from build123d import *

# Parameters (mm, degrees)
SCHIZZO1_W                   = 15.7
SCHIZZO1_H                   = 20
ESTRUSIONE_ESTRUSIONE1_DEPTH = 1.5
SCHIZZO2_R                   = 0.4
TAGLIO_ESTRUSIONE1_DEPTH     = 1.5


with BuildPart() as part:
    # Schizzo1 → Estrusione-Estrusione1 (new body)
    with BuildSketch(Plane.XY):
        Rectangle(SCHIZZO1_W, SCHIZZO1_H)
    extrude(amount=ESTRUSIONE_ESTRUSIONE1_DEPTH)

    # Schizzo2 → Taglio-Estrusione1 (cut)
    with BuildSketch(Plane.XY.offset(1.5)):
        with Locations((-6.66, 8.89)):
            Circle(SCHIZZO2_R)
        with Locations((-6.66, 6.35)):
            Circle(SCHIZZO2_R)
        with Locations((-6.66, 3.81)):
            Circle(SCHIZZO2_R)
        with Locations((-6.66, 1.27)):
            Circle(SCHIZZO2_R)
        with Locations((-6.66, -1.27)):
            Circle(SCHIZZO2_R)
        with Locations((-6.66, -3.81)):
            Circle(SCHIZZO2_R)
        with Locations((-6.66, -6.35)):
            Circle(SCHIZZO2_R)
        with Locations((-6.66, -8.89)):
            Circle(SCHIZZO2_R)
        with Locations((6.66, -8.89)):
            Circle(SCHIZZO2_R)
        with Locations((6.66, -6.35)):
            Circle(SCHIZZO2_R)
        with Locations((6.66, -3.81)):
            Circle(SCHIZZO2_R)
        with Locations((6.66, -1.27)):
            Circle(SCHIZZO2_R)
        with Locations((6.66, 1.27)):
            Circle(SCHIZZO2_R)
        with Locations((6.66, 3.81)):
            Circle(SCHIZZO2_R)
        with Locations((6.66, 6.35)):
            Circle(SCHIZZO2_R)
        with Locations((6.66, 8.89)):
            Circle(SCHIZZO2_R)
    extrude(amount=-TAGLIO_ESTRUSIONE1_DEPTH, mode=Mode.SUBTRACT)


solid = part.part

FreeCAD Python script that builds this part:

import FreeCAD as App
import Part
import Sketcher


def add_polygon(sketch, points):
    """Adds a closed chain of lines whose ends are joined by coincident constraints."""
    first, n = sketch.GeometryCount, len(points)
    for a, b in zip(points, points[1:] + points[:1]):
        sketch.addGeometry(Part.LineSegment(App.Vector(*a, 0), App.Vector(*b, 0)), False)
    for i in range(n):
        sketch.addConstraint(Sketcher.Constraint("Coincident", first + i, 2, first + (i + 1) % n, 1))

doc = App.newDocument("Part")
body = doc.addObject("PartDesign::Body", "Body")

sketch1 = body.newObject("Sketcher::SketchObject", "Sketch")
sketch1.AttachmentSupport = (doc.getObject("XY_Plane"), [""])
sketch1.MapMode = "FlatFace"
add_polygon(sketch1, [(-7.85, 10), (-7.85, -10), (7.85, -10), (7.85, 10)])
sketch1.addConstraint([
    Sketcher.Constraint("Vertical", 0),
    Sketcher.Constraint("Horizontal", 1),
    Sketcher.Constraint("Vertical", 2),
    Sketcher.Constraint("Horizontal", 3),
    Sketcher.Constraint("Symmetric", 0, 2, 2, 2, -1, 1),
    Sketcher.Constraint("DistanceY", 0, 2, 0, 1, 20.0),
    Sketcher.Constraint("DistanceX", 1, 1, 1, 2, 15.7),
])
pad1 = body.newObject("PartDesign::Pad", "Pad")
pad1.Profile = sketch1
pad1.Length = 1.5

sketch2 = body.newObject("Sketcher::SketchObject", "Sketch001")
sketch2.AttachmentSupport = (doc.getObject("XY_Plane"), [""])
sketch2.MapMode = "FlatFace"
sketch2.AttachmentOffset = App.Placement(App.Vector(0, 0, 1.5), App.Rotation())
sketch2.addGeometry([
    Part.Circle(App.Vector(-6.66, 8.89, 0), App.Vector(0, 0, 1), 0.4),
    Part.Circle(App.Vector(-6.66, 6.35, 0), App.Vector(0, 0, 1), 0.4),
    Part.Circle(App.Vector(-6.66, 3.81, 0), App.Vector(0, 0, 1), 0.4),
    Part.Circle(App.Vector(-6.66, 1.27, 0), App.Vector(0, 0, 1), 0.4),
    Part.Circle(App.Vector(-6.66, -1.27, 0), App.Vector(0, 0, 1), 0.4),
    Part.Circle(App.Vector(-6.66, -3.81, 0), App.Vector(0, 0, 1), 0.4),
    Part.Circle(App.Vector(-6.66, -6.35, 0), App.Vector(0, 0, 1), 0.4),
    Part.Circle(App.Vector(-6.66, -8.89, 0), App.Vector(0, 0, 1), 0.4),
    Part.Circle(App.Vector(6.66, -8.89, 0), App.Vector(0, 0, 1), 0.4),
    Part.Circle(App.Vector(6.66, -6.35, 0), App.Vector(0, 0, 1), 0.4),
    Part.Circle(App.Vector(6.66, -3.81, 0), App.Vector(0, 0, 1), 0.4),
    Part.Circle(App.Vector(6.66, -1.27, 0), App.Vector(0, 0, 1), 0.4),
    Part.Circle(App.Vector(6.66, 1.27, 0), App.Vector(0, 0, 1), 0.4),
    Part.Circle(App.Vector(6.66, 3.81, 0), App.Vector(0, 0, 1), 0.4),
    Part.Circle(App.Vector(6.66, 6.35, 0), App.Vector(0, 0, 1), 0.4),
    Part.Circle(App.Vector(6.66, 8.89, 0), App.Vector(0, 0, 1), 0.4),
], False)
sketch2.addConstraint([
    Sketcher.Constraint("Equal", 0, 1),
    Sketcher.Constraint("Equal", 1, 2),
    Sketcher.Constraint("Equal", 2, 3),
    Sketcher.Constraint("Equal", 3, 4),
    Sketcher.Constraint("Equal", 4, 5),
    Sketcher.Constraint("Equal", 5, 6),
    Sketcher.Constraint("Equal", 6, 7),
    Sketcher.Constraint("Equal", 7, 8),
    Sketcher.Constraint("Equal", 8, 9),
    Sketcher.Constraint("Equal", 9, 10),
    Sketcher.Constraint("Equal", 10, 11),
    Sketcher.Constraint("Equal", 11, 12),
    Sketcher.Constraint("Equal", 12, 13),
    Sketcher.Constraint("Equal", 13, 14),
    Sketcher.Constraint("Equal", 14, 15),
    Sketcher.Constraint("Symmetric", 0, 3, 8, 3, -1, 1),
    Sketcher.Constraint("Symmetric", 1, 3, 9, 3, -1, 1),
    Sketcher.Constraint("Symmetric", 2, 3, 10, 3, -1, 1),
    Sketcher.Constraint("Symmetric", 3, 3, 11, 3, -1, 1),
    Sketcher.Constraint("Symmetric", 4, 3, 12, 3, -1, 1),
    Sketcher.Constraint("Symmetric", 5, 3, 13, 3, -1, 1),
    Sketcher.Constraint("Symmetric", 6, 3, 14, 3, -1, 1),
    Sketcher.Constraint("Symmetric", 7, 3, 15, 3, -1, 1),
    Sketcher.Constraint("Symmetric", 7, 3, 8, 3, -2),
    Sketcher.Constraint("Symmetric", 6, 3, 9, 3, -2),
    Sketcher.Constraint("Symmetric", 5, 3, 10, 3, -2),
    Sketcher.Constraint("Symmetric", 4, 3, 11, 3, -2),
    Sketcher.Constraint("Vertical", 0, 3, 1, 3),
    Sketcher.Constraint("Vertical", 1, 3, 2, 3),
    Sketcher.Constraint("Vertical", 2, 3, 3, 3),
    Sketcher.Constraint("Diameter", 0, 0.8),
    Sketcher.Constraint("DistanceY", 5, 3, 0, 3, 12.7),
    Sketcher.Constraint("DistanceY", 6, 3, 1, 3, 12.7),
    Sketcher.Constraint("DistanceX", 0, 3, -1, 1, 6.66),
    Sketcher.Constraint("DistanceY", -1, 1, 0, 3, 8.89),
    Sketcher.Constraint("DistanceY", -1, 1, 3, 3, 1.27),
])
pocket1 = body.newObject("PartDesign::Pocket", "Pocket")
pocket1.Profile = sketch2
pocket1.Length = 1.5

doc.recompute()
